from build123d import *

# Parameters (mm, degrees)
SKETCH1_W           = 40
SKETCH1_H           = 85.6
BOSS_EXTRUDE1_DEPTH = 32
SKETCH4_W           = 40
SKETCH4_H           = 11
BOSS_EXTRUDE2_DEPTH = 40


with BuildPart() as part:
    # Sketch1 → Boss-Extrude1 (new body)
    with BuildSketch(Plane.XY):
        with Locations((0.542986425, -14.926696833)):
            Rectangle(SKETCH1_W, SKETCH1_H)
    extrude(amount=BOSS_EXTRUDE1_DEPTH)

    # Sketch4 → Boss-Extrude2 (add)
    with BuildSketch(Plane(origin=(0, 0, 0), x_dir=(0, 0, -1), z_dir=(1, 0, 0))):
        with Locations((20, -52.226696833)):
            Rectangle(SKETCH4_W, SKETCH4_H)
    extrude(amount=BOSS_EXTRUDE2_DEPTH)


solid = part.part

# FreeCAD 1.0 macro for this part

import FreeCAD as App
import Part
import Sketcher
from FreeCAD import Vector

doc = App.newDocument("Part")
params = doc.addObject("Spreadsheet::Sheet", "Params")
for row, (alias, value) in enumerate([
    ("sketch1_width", "40 mm"),
    ("sketch1_height", "85.6 mm"),
    ("pad1_length", "32 mm"),
    ("sketch2_width", "11 mm"),
    ("sketch2_height", "40 mm"),
    ("pad2_length", "40 mm"),
], start=1):
    params.set(f"A{row}", alias)
    params.set(f"B{row}", "=" + value)
    params.setAlias(f"B{row}", alias)

body = doc.addObject("PartDesign::Body", "Body")

# Sketch on XY plane
sketch1 = doc.addObject("Sketcher::SketchObject", "Sketch")
body.addObject(sketch1)
sketch1.AttachmentSupport = (doc.XY_Plane, [""])
sketch1.MapMode = "FlatFace"
sketch1.addGeometry(Part.LineSegment(Vector(-19, 28, 0), Vector(-19, -58, 0)), False)
sketch1.addGeometry(Part.LineSegment(Vector(-19, -58, 0), Vector(21, -58, 0)), False)
sketch1.addGeometry(Part.LineSegment(Vector(21, -58, 0), Vector(21, 28, 0)), False)
sketch1.addGeometry(Part.LineSegment(Vector(21, 28, 0), Vector(-19, 28, 0)), False)
sketch1.addConstraint(Sketcher.Constraint("Coincident", 0, 2, 1, 1))
sketch1.addConstraint(Sketcher.Constraint("Coincident", 1, 2, 2, 1))
sketch1.addConstraint(Sketcher.Constraint("Coincident", 2, 2, 3, 1))
sketch1.addConstraint(Sketcher.Constraint("Coincident", 3, 2, 0, 1))
sketch1.addConstraint(Sketcher.Constraint("Vertical", 0))
sketch1.addConstraint(Sketcher.Constraint("Horizontal", 1))
sketch1.addConstraint(Sketcher.Constraint("Vertical", 2))
sketch1.addConstraint(Sketcher.Constraint("Horizontal", 3))
sketch1.addConstraint(Sketcher.Constraint("DistanceX", 1, 1, 1, 2, 40.0))
sketch1.addConstraint(Sketcher.Constraint("DistanceY", 0, 2, 0, 1, 85.6))
sketch1.addConstraint(Sketcher.Constraint("DistanceX", 0, 2, -1, 1, 19.457014))
sketch1.addConstraint(Sketcher.Constraint("DistanceY", 0, 2, -1, 1, 57.726697))
sketch1.setExpression("Constraints[8]", "Params.sketch1_width")
sketch1.setExpression("Constraints[9]", "Params.sketch1_height")
pad1 = doc.addObject("PartDesign::Pad", "Pad")
body.addObject(pad1)
pad1.Profile = sketch1
pad1.setExpression("Length", "Params.pad1_length")

# Sketch on YZ plane
sketch2 = doc.addObject("Sketcher::SketchObject", "Sketch001")
body.addObject(sketch2)
sketch2.AttachmentSupport = (doc.YZ_Plane, [""])
sketch2.MapMode = "FlatFace"
sketch2.addGeometry(Part.LineSegment(Vector(-47, 0, 0), Vector(-58, 0, 0)), False)
sketch2.addGeometry(Part.LineSegment(Vector(-58, 0, 0), Vector(-58, -40, 0)), False)
sketch2.addGeometry(Part.LineSegment(Vector(-58, -40, 0), Vector(-47, -40, 0)), False)
sketch2.addGeometry(Part.LineSegment(Vector(-47, -40, 0), Vector(-47, 0, 0)), False)
sketch2.addConstraint(Sketcher.Constraint("Coincident", 0, 2, 1, 1))
sketch2.addConstraint(Sketcher.Constraint("Coincident", 1, 2, 2, 1))
sketch2.addConstraint(Sketcher.Constraint("Coincident", 2, 2, 3, 1))
sketch2.addConstraint(Sketcher.Constraint("Coincident", 3, 2, 0, 1))
sketch2.addConstraint(Sketcher.Constraint("Horizontal", 0))
sketch2.addConstraint(Sketcher.Constraint("Vertical", 1))
sketch2.addConstraint(Sketcher.Constraint("Horizontal", 2))
sketch2.addConstraint(Sketcher.Constraint("Vertical", 3))
sketch2.addConstraint(Sketcher.Constraint("PointOnObject", 0, 2, -1))
sketch2.addConstraint(Sketcher.Constraint("DistanceX", 0, 2, 0, 1, 11.0))
sketch2.addConstraint(Sketcher.Constraint("DistanceY", 1, 2, 1, 1, 40.0))
sketch2.addConstraint(Sketcher.Constraint("DistanceX", 0, 2, -1, 1, 57.726697))
sketch2.setExpression("Constraints[9]", "Params.sketch2_width")
sketch2.setExpression("Constraints[10]", "Params.sketch2_height")
pad2 = doc.addObject("PartDesign::Pad", "Pad001")
body.addObject(pad2)
pad2.Profile = sketch2
pad2.setExpression("Length", "Params.pad2_length")

doc.recompute()
